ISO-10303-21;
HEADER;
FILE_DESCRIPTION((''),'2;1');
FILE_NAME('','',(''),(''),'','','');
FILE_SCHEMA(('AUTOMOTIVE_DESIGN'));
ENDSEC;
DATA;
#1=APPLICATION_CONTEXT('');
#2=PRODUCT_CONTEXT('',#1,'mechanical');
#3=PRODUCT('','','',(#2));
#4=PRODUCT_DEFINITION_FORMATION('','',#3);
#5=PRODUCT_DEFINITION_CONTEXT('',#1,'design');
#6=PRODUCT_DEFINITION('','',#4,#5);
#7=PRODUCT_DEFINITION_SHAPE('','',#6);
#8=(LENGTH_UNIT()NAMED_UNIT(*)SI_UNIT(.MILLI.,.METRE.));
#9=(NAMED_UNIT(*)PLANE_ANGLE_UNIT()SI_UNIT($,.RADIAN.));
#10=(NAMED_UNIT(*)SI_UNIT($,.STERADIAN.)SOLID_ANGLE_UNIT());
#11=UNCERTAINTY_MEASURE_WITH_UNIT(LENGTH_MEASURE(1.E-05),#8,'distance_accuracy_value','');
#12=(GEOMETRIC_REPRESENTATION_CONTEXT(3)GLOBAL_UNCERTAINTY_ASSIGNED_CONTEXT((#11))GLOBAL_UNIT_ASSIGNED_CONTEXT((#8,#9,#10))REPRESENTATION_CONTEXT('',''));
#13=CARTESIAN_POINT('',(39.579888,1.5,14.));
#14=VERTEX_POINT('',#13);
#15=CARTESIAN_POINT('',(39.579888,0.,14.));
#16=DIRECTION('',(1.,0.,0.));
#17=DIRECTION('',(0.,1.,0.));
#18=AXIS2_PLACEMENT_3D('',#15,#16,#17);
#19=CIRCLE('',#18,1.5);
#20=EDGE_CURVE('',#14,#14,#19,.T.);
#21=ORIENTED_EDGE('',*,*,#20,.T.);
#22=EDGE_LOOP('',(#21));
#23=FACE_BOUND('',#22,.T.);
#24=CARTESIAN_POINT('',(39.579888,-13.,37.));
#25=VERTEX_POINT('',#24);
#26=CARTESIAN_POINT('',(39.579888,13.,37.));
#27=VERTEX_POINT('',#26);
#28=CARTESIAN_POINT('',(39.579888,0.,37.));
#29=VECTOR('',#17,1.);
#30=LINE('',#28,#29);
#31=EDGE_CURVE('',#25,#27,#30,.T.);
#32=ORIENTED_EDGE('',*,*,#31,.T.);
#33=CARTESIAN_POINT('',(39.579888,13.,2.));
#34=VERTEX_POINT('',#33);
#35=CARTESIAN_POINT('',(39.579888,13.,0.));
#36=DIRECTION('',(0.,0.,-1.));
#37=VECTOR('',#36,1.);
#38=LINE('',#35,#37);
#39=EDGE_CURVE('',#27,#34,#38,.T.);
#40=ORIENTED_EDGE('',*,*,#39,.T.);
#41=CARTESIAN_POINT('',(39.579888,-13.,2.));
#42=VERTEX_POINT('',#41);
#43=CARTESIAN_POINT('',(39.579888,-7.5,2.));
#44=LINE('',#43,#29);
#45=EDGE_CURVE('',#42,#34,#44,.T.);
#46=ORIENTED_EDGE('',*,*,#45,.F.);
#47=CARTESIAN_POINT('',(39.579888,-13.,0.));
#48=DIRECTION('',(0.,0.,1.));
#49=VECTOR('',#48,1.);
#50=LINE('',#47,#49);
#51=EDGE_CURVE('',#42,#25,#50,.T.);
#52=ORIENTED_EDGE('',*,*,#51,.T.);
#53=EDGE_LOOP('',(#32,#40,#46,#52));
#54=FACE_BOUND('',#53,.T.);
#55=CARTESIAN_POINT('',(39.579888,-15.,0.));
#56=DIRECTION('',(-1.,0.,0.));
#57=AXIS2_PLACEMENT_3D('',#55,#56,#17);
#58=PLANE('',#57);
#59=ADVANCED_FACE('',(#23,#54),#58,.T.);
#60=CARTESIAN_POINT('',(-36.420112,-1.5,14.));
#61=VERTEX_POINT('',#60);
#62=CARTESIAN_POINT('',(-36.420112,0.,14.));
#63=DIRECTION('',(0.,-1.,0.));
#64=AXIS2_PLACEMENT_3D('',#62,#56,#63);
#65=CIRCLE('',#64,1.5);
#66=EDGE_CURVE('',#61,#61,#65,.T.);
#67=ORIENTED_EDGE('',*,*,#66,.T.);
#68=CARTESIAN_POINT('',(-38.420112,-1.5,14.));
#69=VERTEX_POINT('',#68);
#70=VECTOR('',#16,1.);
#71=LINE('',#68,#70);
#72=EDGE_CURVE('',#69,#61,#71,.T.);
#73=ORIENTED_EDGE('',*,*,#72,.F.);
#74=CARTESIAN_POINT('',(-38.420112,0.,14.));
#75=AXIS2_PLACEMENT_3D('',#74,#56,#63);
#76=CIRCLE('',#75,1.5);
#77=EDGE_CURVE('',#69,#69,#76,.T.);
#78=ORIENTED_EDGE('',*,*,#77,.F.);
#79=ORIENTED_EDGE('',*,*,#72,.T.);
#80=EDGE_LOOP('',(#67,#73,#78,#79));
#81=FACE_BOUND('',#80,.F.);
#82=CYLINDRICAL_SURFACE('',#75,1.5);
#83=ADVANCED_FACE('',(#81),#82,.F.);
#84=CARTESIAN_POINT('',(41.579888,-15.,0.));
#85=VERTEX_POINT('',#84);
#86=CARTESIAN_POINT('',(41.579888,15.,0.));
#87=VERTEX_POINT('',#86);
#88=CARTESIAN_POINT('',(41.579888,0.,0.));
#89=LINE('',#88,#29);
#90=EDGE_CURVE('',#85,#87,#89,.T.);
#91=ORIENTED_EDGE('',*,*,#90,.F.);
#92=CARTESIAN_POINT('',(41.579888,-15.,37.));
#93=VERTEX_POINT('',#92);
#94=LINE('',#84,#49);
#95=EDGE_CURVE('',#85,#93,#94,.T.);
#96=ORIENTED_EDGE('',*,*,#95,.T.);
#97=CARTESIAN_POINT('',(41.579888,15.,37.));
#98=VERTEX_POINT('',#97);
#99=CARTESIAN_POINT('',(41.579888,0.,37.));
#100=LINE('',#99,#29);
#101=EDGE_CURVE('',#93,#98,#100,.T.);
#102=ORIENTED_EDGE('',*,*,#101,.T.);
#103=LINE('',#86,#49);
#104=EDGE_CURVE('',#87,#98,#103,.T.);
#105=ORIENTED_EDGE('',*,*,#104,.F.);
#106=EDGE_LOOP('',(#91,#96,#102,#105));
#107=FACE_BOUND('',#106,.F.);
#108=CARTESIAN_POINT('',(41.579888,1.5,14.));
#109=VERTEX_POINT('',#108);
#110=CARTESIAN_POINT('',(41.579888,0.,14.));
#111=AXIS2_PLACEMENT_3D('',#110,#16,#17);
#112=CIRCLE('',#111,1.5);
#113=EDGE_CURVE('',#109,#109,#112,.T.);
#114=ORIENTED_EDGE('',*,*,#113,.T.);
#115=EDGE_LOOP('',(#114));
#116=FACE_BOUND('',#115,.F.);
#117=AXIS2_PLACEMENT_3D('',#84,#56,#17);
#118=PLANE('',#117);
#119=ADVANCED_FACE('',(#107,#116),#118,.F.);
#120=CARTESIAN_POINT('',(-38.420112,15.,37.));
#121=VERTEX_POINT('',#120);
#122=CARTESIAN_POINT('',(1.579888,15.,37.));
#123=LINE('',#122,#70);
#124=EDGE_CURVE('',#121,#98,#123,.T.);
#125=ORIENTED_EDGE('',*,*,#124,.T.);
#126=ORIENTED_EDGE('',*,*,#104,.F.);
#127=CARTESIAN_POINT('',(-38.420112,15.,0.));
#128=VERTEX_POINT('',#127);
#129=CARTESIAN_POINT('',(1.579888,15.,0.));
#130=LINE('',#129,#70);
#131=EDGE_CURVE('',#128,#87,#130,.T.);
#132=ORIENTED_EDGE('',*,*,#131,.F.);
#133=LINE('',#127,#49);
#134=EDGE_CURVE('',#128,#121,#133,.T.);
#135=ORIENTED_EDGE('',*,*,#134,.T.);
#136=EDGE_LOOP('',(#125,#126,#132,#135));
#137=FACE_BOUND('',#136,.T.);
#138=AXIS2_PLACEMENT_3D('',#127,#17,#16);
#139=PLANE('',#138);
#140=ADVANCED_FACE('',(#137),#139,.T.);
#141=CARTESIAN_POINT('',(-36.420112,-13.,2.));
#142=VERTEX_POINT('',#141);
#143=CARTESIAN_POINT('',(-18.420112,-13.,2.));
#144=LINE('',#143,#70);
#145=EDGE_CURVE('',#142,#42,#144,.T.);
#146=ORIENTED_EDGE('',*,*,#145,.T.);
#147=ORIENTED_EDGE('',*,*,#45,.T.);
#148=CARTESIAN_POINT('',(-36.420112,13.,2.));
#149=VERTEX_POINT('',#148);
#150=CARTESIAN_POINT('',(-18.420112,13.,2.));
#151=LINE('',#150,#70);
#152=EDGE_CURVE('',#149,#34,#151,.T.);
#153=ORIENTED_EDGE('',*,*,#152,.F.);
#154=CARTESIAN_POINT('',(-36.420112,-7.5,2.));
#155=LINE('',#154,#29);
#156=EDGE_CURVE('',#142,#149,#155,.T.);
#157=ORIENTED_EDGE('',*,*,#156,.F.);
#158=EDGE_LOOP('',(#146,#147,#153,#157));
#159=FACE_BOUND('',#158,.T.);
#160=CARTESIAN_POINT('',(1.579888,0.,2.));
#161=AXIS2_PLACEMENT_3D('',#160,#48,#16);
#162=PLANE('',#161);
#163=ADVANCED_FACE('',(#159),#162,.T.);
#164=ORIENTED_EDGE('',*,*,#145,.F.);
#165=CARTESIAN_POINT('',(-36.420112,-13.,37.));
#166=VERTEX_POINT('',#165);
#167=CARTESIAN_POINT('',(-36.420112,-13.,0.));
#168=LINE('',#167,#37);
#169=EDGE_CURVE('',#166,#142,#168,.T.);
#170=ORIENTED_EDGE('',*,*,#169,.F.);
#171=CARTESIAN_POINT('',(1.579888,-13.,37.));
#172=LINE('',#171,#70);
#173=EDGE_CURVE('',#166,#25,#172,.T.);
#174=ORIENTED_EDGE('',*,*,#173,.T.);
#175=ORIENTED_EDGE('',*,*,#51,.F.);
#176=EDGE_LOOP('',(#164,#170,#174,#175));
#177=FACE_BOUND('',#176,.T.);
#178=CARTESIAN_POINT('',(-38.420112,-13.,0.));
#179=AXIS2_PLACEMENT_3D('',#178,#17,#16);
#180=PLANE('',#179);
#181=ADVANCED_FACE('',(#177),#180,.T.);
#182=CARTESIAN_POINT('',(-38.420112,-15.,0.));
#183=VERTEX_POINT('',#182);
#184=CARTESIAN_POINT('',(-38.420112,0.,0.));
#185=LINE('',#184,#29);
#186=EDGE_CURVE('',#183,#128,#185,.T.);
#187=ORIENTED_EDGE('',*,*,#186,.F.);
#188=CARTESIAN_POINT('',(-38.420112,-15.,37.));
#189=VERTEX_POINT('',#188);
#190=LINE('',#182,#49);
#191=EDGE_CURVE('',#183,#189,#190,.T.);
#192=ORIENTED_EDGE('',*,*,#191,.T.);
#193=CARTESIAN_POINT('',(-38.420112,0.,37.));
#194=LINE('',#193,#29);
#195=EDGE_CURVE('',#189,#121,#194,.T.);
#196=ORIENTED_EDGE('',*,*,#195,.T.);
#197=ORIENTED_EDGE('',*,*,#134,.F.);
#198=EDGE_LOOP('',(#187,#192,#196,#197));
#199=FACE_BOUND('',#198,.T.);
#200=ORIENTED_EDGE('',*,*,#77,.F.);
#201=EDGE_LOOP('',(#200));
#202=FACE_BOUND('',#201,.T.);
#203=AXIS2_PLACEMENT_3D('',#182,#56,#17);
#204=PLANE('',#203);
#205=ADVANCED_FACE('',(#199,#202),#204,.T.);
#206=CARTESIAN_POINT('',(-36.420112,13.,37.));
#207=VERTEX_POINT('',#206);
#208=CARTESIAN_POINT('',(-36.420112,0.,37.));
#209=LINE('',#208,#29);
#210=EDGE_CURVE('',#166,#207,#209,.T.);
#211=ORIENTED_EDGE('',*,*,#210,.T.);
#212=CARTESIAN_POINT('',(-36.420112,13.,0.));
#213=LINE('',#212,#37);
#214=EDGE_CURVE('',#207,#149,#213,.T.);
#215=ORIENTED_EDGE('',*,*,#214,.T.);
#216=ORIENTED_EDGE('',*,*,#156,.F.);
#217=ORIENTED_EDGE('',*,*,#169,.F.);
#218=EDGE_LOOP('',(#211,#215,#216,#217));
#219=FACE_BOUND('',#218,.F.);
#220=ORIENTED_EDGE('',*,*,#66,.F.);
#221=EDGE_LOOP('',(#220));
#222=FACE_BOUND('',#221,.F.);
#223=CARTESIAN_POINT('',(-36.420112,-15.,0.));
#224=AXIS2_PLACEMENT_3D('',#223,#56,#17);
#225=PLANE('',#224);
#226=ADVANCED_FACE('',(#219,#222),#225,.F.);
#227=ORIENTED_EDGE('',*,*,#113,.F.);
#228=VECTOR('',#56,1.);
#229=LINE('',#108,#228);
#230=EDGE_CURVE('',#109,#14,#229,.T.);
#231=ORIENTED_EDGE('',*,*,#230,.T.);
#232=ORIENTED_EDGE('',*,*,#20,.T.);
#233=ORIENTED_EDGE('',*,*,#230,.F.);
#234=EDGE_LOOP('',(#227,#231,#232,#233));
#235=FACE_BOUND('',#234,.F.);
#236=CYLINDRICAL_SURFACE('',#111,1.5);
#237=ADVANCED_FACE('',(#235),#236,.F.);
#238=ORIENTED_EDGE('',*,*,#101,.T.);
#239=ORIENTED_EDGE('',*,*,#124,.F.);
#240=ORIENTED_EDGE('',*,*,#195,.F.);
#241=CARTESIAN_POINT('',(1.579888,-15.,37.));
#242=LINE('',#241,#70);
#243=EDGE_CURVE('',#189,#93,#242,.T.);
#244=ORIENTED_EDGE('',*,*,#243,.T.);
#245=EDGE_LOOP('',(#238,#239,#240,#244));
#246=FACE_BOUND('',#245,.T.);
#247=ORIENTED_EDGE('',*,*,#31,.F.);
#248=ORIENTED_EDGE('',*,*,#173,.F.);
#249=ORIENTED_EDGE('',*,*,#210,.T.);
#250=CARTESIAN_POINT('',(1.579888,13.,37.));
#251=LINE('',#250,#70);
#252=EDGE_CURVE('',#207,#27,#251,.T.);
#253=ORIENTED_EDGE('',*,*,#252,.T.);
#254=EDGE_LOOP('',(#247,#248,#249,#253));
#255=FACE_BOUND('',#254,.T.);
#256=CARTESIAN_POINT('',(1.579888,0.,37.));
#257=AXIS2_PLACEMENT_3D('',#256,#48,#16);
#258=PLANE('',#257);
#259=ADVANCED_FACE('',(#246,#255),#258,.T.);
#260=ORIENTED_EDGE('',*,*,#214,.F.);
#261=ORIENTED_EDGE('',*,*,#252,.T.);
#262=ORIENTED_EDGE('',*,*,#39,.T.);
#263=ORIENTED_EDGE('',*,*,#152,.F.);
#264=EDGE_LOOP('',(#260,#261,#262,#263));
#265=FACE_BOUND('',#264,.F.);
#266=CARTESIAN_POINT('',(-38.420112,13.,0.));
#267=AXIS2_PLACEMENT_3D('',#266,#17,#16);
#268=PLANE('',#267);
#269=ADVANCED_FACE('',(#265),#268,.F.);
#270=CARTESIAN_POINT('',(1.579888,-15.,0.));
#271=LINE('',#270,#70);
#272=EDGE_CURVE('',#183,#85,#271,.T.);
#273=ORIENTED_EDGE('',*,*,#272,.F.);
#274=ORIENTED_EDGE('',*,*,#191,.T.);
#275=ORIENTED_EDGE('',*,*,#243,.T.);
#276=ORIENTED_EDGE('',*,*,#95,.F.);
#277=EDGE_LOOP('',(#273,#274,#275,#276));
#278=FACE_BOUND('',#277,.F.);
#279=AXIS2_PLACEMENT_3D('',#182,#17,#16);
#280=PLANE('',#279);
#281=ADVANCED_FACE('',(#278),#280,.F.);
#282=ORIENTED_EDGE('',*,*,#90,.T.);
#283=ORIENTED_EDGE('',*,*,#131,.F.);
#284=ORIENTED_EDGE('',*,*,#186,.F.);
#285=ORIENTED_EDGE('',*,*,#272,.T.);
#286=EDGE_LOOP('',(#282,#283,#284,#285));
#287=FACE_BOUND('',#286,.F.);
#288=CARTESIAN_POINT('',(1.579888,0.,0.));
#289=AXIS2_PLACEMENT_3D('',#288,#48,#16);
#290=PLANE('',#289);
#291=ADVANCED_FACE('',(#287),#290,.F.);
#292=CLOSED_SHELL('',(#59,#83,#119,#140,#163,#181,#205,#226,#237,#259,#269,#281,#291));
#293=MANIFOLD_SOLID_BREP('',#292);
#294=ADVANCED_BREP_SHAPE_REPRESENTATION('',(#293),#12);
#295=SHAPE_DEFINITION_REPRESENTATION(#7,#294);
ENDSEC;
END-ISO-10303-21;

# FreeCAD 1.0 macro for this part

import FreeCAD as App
import Part
import Sketcher

V = App.Vector


def faces_at(feature, points):
    """Names of the faces that lie closest to the given points."""
    faces = feature.Shape.Faces
    near = lambda p: min(range(len(faces)), key=lambda i: faces[i].distToShape(Part.Vertex(*p))[0])
    return sorted({f"Face{near(p) + 1}" for p in points})

doc = App.newDocument("Part")
body = doc.addObject("PartDesign::Body", "Body")

# Sketch on XY plane
sketch1 = body.newObject("Sketcher::SketchObject", "Sketch")
sketch1.AttachmentSupport = (doc.getObject("XY_Plane"), [""])
sketch1.MapMode = "FlatFace"
sketch1.addGeometry([
    Part.LineSegment(V(-38, 15, 0), V(-38, -15, 0)),
    Part.LineSegment(V(-38, -15, 0), V(42, -15, 0)),
    Part.LineSegment(V(42, -15, 0), V(42, 15, 0)),
    Part.LineSegment(V(42, 15, 0), V(-38, 15, 0)),
], False)
sketch1.addConstraint([
    Sketcher.Constraint("Coincident", 0, 2, 1, 1),
    Sketcher.Constraint("Coincident", 1, 2, 2, 1),
    Sketcher.Constraint("Coincident", 2, 2, 3, 1),
    Sketcher.Constraint("Coincident", 3, 2, 0, 1),
    Sketcher.Constraint("Vertical", 0),
    Sketcher.Constraint("Horizontal", 1),
    Sketcher.Constraint("Vertical", 2),
    Sketcher.Constraint("Horizontal", 3),
    Sketcher.Constraint("DistanceX", 1, 1, 1, 2, 80.0),
    Sketcher.Constraint("DistanceY", 0, 2, 0, 1, 30.0),
    Sketcher.Constraint("DistanceY", 0, 2, -1, 1, 15.0),
    Sketcher.Constraint("DistanceX", 0, 2, -1, 1, 38.420112),
])
pad1 = body.newObject("PartDesign::Pad", "Pad")
pad1.Profile = sketch1
pad1.Length = 37
doc.recompute()

thickness = body.newObject("PartDesign::Thickness", "Thickness")
thickness.Base = (pad1, faces_at(pad1, [(1.58, 0, 37)]))
thickness.Value = 2
thickness.Reversed = True
thickness.Join = "Arc"

# Sketch on YZ plane
sketch2 = body.newObject("Sketcher::SketchObject", "Sketch001")
sketch2.AttachmentSupport = (doc.getObject("YZ_Plane"), [""])
sketch2.MapMode = "FlatFace"
sketch2.AttachmentOffset = App.Placement(V(0, 0, 41.579888), App.Rotation())
sketch2.addGeometry(Part.Circle(V(0, 14, 0), V(0, 0, 1), 1.5), False)
sketch2.addConstraint([
    Sketcher.Constraint("PointOnObject", 0, 3, -2),
    Sketcher.Constraint("Diameter", 0, 3.0),
    Sketcher.Constraint("DistanceY", -1, 1, 0, 3, 14.0),
])
pocket1 = body.newObject("PartDesign::Pocket", "Pocket")
pocket1.Profile = sketch2
pocket1.Length = 25

# Sketch on YZ plane
sketch3 = body.newObject("Sketcher::SketchObject", "Sketch002")
sketch3.AttachmentSupport = (doc.getObject("YZ_Plane"), [""])
sketch3.MapMode = "FlatFace"
sketch3.AttachmentOffset = App.Placement(V(0, 0, -38.420112), App.Rotation())
sketch3.addGeometry(Part.Circle(V(0, 14, 0), V(0, 0, 1), 1.5), False)
sketch3.addConstraint([
    Sketcher.Constraint("PointOnObject", 0, 3, -2),
    Sketcher.Constraint("Diameter", 0, 3.0),
    Sketcher.Constraint("DistanceY", -1, 1, 0, 3, 14.0),
])
pocket2 = body.newObject("PartDesign::Pocket", "Pocket001")
pocket2.Profile = sketch3
pocket2.Length = 3
pocket2.Reversed = True

doc.recompute()
